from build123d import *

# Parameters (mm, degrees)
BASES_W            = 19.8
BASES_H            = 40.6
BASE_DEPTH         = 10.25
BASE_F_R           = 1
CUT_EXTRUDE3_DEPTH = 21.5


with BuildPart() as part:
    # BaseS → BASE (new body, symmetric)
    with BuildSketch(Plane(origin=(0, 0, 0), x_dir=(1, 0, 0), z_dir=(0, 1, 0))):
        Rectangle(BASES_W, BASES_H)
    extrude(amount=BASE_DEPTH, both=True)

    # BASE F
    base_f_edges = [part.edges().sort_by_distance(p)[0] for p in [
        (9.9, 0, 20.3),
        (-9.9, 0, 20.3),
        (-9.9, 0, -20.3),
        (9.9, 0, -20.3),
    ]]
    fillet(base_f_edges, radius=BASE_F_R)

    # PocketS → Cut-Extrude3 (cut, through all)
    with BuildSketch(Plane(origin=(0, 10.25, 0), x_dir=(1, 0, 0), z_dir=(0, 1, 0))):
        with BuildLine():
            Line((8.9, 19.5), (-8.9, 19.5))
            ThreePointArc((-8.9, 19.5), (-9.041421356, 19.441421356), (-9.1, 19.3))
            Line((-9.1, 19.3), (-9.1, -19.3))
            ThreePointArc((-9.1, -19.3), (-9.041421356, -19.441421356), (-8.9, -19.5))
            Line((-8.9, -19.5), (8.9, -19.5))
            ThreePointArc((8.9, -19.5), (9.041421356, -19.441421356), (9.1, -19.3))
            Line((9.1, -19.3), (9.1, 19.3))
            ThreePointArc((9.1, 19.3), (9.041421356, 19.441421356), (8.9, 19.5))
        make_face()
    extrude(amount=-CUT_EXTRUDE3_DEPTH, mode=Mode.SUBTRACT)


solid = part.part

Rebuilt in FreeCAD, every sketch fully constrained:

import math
import FreeCAD as App
import Part
import Sketcher
from FreeCAD import Vector
Q = App.Units.Quantity


def edges_at(feature, points):
    """Names of the edges that pass closest to the given points."""
    edges = feature.Shape.Edges
    near = lambda p: min(range(len(edges)), key=lambda i: edges[i].distToShape(Part.Vertex(*p))[0])
    return sorted({f"Edge{near(p) + 1}" for p in points})

doc = App.newDocument("Part")
params = doc.addObject("Spreadsheet::Sheet", "Params")
for row, (alias, value) in enumerate([
    ("sketch1_width", "19.8 mm"),
    ("sketch1_height", "40.6 mm"),
    ("pad1_length", "20.5 mm"),
    ("fillet_radius", "1 mm"),
    ("sketch2_radius", "0.2 mm"),
    ("sketch2_width", "17.8 mm"),
    ("sketch2_height", "38.6 mm"),
], start=1):
    params.set(f"A{row}", alias)
    params.set(f"B{row}", "=" + value)
    params.setAlias(f"B{row}", alias)

body = doc.addObject("PartDesign::Body", "Body")

# Sketch on XZ plane
sketch1 = body.newObject("Sketcher::SketchObject", "Sketch")
sketch1.AttachmentSupport = (doc.getObject("XZ_Plane"), [""])
sketch1.MapMode = "FlatFace"
sketch1.addGeometry(Part.LineSegment(Vector(-10, -20, 0), Vector(-10, 20, 0)), False)
sketch1.addGeometry(Part.LineSegment(Vector(-10, 20, 0), Vector(10, 20, 0)), False)
sketch1.addGeometry(Part.LineSegment(Vector(10, 20, 0), Vector(10, -20, 0)), False)
sketch1.addGeometry(Part.LineSegment(Vector(10, -20, 0), Vector(-10, -20, 0)), False)
sketch1.addConstraint(Sketcher.Constraint("Coincident", 0, 2, 1, 1))
sketch1.addConstraint(Sketcher.Constraint("Coincident", 1, 2, 2, 1))
sketch1.addConstraint(Sketcher.Constraint("Coincident", 2, 2, 3, 1))
sketch1.addConstraint(Sketcher.Constraint("Coincident", 3, 2, 0, 1))
sketch1.addConstraint(Sketcher.Constraint("Vertical", 0))
sketch1.addConstraint(Sketcher.Constraint("Horizontal", 1))
sketch1.addConstraint(Sketcher.Constraint("Vertical", 2))
sketch1.addConstraint(Sketcher.Constraint("Horizontal", 3))
sketch1.addConstraint(Sketcher.Constraint("Symmetric", 0, 2, 2, 2, -1, 1))
sketch1.addConstraint(Sketcher.Constraint("DistanceX", 1, 1, 1, 2, Q("19.8 mm")))
sketch1.addConstraint(Sketcher.Constraint("DistanceY", 0, 1, 0, 2, Q("40.6 mm")))
sketch1.setExpression("Constraints[9]", "Params.sketch1_width")
sketch1.setExpression("Constraints[10]", "Params.sketch1_height")
pad1 = body.newObject("PartDesign::Pad", "Pad")
pad1.Profile = sketch1
pad1.setExpression("Length", "Params.pad1_length")
pad1.Midplane = True
doc.recompute()

fillet = body.newObject("PartDesign::Fillet", "Fillet")
fillet.Base = (pad1, edges_at(pad1, [
    (9.9, 0, 20.3),
    (-9.9, 0, 20.3),
    (-9.9, 0, -20.3),
    (9.9, 0, -20.3),
]))
fillet.setExpression("Radius", "Params.fillet_radius")

# Sketch on XZ plane
sketch2 = body.newObject("Sketcher::SketchObject", "Sketch001")
sketch2.AttachmentSupport = (doc.getObject("XZ_Plane"), [""])
sketch2.MapMode = "FlatFace"
sketch2.AttachmentOffset = App.Placement(Vector(0, 0, -10.25), App.Rotation())
sketch2.addGeometry(Part.LineSegment(Vector(8.9, -19.5, 0), Vector(-8.9, -19.5, 0)), False)
sketch2.addGeometry(Part.ArcOfCircle(Part.Circle(Vector(-8.9, -19.3, 0), Vector(0, 0, 1), 0.2), math.radians(-180), math.radians(-90)), False)
sketch2.addGeometry(Part.LineSegment(Vector(-9.1, -19.3, 0), Vector(-9.1, 19.3, 0)), False)
sketch2.addGeometry(Part.ArcOfCircle(Part.Circle(Vector(-8.9, 19.3, 0), Vector(0, 0, 1), 0.2), math.radians(90), math.radians(180)), False)
sketch2.addGeometry(Part.LineSegment(Vector(-8.9, 19.5, 0), Vector(8.9, 19.5, 0)), False)
sketch2.addGeometry(Part.ArcOfCircle(Part.Circle(Vector(8.9, 19.3, 0), Vector(0, 0, 1), 0.2), math.radians(0), math.radians(90)), False)
sketch2.addGeometry(Part.LineSegment(Vector(9.1, 19.3, 0), Vector(9.1, -19.3, 0)), False)
sketch2.addGeometry(Part.ArcOfCircle(Part.Circle(Vector(8.9, -19.3, 0), Vector(0, 0, 1), 0.2), math.radians(-90), math.radians(0)), False)
sketch2.addConstraint(Sketcher.Constraint("Tangent", 0, 2, 1, 2))
sketch2.addConstraint(Sketcher.Constraint("Tangent", 1, 1, 2, 1))
sketch2.addConstraint(Sketcher.Constraint("Tangent", 2, 2, 3, 2))
sketch2.addConstraint(Sketcher.Constraint("Tangent", 3, 1, 4, 1))
sketch2.addConstraint(Sketcher.Constraint("Tangent", 4, 2, 5, 2))
sketch2.addConstraint(Sketcher.Constraint("Tangent", 5, 1, 6, 1))
sketch2.addConstraint(Sketcher.Constraint("Tangent", 6, 2, 7, 2))
sketch2.addConstraint(Sketcher.Constraint("Tangent", 7, 1, 0, 1))
sketch2.addConstraint(Sketcher.Constraint("Horizontal", 0))
sketch2.addConstraint(Sketcher.Constraint("Vertical", 2))
sketch2.addConstraint(Sketcher.Constraint("Horizontal", 4))
sketch2.addConstraint(Sketcher.Constraint("Vertical", 6))
sketch2.addConstraint(Sketcher.Constraint("Equal", 1, 3))
sketch2.addConstraint(Sketcher.Constraint("Equal", 3, 5))
sketch2.addConstraint(Sketcher.Constraint("Equal", 5, 7))
sketch2.addConstraint(Sketcher.Constraint("Symmetric", 1, 3, 5, 3, -1, 1))
sketch2.addConstraint(Sketcher.Constraint("Radius", 1, Q("0.2 mm")))
sketch2.addConstraint(Sketcher.Constraint("DistanceX", 0, 2, 0, 1, Q("17.8 mm")))
sketch2.addConstraint(Sketcher.Constraint("DistanceY", 2, 1, 2, 2, Q("38.6 mm")))
sketch2.setExpression("Constraints[16]", "Params.sketch2_radius")
sketch2.setExpression("Constraints[17]", "Params.sketch2_width")
sketch2.setExpression("Constraints[18]", "Params.sketch2_height")
pocket1 = body.newObject("PartDesign::Pocket", "Pocket")
pocket1.Profile = sketch2
pocket1.Type = "ThroughAll"
pocket1.Reversed = True

doc.recompute()
